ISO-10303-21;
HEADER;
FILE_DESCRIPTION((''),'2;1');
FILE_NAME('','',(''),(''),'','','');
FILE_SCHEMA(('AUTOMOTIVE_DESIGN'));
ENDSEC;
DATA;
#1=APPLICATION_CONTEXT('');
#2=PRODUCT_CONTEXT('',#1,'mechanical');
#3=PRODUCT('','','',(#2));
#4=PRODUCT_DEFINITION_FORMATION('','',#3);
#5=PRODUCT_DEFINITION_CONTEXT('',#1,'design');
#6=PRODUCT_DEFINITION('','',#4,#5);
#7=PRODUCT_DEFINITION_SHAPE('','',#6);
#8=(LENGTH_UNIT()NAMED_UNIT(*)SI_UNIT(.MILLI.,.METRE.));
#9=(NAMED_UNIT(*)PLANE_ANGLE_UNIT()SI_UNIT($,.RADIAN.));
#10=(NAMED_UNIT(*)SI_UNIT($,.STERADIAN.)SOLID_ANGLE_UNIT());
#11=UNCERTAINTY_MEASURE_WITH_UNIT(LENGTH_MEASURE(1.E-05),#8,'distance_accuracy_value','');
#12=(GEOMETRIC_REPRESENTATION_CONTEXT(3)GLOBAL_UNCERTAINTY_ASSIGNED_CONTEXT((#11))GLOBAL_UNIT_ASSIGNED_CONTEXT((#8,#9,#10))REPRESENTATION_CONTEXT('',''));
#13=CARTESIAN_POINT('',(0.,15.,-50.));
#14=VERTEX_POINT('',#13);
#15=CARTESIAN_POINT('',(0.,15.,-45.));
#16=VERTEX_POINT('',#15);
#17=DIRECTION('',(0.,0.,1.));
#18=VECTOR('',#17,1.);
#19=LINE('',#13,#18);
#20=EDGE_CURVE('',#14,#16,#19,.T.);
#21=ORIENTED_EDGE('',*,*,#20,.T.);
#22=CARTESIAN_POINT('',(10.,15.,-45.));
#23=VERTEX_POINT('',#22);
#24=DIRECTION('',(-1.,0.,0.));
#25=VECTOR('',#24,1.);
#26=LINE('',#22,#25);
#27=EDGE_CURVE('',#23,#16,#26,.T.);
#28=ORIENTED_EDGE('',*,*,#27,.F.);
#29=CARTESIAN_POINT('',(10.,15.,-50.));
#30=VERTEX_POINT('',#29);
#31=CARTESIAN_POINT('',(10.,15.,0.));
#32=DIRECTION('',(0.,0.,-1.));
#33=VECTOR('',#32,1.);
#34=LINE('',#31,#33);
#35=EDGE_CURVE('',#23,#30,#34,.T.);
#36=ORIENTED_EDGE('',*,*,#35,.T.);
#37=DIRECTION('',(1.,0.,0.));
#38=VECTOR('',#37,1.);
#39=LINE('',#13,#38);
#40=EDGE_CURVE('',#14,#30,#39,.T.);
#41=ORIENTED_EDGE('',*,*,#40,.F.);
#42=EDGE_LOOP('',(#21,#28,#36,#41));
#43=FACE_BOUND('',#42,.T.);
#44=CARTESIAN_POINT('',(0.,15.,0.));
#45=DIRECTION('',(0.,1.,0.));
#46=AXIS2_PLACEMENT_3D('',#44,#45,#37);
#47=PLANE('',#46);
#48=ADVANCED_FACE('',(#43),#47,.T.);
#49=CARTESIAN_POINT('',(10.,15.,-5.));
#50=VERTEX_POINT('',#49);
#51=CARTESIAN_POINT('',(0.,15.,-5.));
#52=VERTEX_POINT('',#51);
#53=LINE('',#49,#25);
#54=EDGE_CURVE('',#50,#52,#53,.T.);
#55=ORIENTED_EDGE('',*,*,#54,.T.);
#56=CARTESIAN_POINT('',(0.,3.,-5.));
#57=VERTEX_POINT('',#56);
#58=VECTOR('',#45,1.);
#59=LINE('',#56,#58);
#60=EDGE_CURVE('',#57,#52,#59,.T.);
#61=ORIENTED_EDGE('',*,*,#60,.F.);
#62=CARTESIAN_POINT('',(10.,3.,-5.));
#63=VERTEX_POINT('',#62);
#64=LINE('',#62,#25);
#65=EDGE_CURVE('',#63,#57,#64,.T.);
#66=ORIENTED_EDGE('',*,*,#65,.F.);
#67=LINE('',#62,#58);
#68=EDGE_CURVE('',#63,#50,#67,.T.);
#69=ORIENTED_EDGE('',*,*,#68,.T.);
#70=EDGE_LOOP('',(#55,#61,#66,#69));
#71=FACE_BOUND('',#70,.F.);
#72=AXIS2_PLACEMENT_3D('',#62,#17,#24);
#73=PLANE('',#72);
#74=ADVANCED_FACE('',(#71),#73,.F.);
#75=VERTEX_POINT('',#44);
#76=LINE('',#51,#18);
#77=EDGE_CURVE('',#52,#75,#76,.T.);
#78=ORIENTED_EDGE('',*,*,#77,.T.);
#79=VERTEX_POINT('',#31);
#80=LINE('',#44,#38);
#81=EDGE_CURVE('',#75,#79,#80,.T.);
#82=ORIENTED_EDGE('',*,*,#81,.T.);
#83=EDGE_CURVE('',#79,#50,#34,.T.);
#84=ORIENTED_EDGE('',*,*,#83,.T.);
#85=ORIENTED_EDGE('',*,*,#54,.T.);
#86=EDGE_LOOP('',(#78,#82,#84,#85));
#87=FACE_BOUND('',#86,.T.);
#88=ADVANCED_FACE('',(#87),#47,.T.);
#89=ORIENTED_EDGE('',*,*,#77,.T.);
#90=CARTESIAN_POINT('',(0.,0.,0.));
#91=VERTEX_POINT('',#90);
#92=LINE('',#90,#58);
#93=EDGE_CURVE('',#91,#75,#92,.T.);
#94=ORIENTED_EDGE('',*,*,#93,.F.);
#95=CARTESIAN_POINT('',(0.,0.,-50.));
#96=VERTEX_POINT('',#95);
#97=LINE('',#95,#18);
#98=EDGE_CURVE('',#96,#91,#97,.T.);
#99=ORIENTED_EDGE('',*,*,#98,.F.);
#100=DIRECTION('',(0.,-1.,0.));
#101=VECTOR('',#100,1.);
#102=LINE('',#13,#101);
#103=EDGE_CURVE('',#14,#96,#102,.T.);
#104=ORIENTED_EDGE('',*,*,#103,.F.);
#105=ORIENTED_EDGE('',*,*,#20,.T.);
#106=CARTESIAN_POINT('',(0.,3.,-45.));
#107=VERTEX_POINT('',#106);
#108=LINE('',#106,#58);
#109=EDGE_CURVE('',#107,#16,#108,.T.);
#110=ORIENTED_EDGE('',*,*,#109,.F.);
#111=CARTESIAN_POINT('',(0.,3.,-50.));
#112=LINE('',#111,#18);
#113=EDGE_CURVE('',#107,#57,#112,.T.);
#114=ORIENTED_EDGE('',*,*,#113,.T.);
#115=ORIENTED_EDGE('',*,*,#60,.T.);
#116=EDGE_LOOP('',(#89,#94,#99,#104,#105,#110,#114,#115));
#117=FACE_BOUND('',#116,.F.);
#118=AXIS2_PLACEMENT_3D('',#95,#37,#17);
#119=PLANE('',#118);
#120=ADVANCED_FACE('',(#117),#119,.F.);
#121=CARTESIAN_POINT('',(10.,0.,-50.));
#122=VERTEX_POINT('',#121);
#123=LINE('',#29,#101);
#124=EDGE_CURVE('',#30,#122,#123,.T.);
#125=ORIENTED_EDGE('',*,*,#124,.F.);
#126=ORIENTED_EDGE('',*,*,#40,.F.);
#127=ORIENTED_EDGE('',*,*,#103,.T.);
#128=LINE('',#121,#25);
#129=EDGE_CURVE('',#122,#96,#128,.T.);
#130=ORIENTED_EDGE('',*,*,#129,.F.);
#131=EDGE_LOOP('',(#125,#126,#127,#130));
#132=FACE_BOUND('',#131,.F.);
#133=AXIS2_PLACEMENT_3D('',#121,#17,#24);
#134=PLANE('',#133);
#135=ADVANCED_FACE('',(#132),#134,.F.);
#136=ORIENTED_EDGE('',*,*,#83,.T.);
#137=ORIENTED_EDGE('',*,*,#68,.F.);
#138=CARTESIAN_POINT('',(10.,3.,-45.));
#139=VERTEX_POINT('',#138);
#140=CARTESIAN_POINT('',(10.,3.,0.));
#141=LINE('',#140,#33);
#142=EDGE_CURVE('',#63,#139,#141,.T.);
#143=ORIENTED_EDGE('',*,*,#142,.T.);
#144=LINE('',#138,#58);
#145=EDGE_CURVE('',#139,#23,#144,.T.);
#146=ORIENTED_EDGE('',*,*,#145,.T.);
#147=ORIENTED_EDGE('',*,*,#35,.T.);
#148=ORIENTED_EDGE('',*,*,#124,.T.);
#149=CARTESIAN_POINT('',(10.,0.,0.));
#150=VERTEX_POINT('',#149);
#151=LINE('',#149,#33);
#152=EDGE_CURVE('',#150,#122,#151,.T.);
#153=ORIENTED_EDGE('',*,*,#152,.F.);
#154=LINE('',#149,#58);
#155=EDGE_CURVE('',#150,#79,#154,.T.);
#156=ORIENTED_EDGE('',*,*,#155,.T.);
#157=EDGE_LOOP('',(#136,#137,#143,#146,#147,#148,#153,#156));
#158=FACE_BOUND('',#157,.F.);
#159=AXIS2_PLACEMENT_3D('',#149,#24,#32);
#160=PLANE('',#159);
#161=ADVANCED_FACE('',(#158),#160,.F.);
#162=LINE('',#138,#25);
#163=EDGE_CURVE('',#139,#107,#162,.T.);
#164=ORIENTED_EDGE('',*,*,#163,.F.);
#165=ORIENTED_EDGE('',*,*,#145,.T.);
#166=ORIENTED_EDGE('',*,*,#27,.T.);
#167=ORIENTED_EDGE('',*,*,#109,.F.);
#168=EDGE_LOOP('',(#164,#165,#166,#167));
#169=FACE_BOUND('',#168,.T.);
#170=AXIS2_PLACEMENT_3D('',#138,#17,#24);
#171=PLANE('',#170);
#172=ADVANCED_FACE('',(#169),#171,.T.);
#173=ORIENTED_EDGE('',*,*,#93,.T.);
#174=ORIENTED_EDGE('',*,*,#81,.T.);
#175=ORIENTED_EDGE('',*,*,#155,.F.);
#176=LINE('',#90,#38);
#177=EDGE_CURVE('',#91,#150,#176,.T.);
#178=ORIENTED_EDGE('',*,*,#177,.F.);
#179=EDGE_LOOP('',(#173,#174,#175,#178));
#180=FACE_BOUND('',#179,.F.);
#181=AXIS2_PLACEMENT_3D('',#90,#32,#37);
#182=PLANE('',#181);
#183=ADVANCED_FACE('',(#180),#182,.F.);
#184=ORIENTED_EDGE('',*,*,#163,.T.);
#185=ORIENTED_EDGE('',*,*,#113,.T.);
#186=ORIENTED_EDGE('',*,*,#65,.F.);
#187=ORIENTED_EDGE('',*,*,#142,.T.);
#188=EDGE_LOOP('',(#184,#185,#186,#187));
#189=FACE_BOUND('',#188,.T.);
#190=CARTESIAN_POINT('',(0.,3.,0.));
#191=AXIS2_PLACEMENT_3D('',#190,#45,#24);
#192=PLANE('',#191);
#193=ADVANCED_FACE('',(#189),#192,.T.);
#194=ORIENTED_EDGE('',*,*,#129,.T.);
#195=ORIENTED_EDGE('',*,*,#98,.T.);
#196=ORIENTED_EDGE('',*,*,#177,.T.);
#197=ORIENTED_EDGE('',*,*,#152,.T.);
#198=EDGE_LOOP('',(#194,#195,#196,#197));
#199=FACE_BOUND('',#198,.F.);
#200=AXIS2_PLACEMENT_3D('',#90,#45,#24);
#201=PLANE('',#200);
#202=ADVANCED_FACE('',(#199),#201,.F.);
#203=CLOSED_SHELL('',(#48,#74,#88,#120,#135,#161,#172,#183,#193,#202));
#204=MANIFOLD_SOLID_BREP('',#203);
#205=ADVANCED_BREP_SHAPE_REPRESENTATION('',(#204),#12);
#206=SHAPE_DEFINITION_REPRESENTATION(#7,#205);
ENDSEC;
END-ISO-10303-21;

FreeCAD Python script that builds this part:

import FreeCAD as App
import Part
import Sketcher

V = App.Vector
Q = App.Units.Quantity

doc = App.newDocument("Part")
body = doc.addObject("PartDesign::Body", "Body")

sketch1 = doc.addObject("Sketcher::SketchObject", "Sketch")
body.addObject(sketch1)
sketch1.AttachmentSupport = (doc.XZ_Plane, [""])
sketch1.MapMode = "FlatFace"
sketch1.addGeometry([
    Part.LineSegment(V(0, -50, 0), V(0, 0, 0)),
    Part.LineSegment(V(0, 0, 0), V(10, 0, 0)),
    Part.LineSegment(V(10, 0, 0), V(10, -50, 0)),
    Part.LineSegment(V(10, -50, 0), V(0, -50, 0)),
], False)
sketch1.addConstraint([
    Sketcher.Constraint("Coincident", 0, 2, 1, 1),
    Sketcher.Constraint("Coincident", 1, 2, 2, 1),
    Sketcher.Constraint("Coincident", 2, 2, 3, 1),
    Sketcher.Constraint("Coincident", 3, 2, 0, 1),
    Sketcher.Constraint("Vertical", 0),
    Sketcher.Constraint("Horizontal", 1),
    Sketcher.Constraint("Vertical", 2),
    Sketcher.Constraint("Horizontal", 3),
    Sketcher.Constraint("Coincident", 0, 2, -1, 1),
    Sketcher.Constraint("DistanceX", 1, 1, 1, 2, Q("10 mm")),
    Sketcher.Constraint("DistanceY", 0, 1, 0, 2, Q("50 mm")),
])
pad1 = doc.addObject("PartDesign::Pad", "Pad")
body.addObject(pad1)
pad1.Profile = sketch1
pad1.Length = 3
pad1.Reversed = True

sketch2 = doc.addObject("Sketcher::SketchObject", "Sketch001")
body.addObject(sketch2)
sketch2.AttachmentSupport = (doc.XZ_Plane, [""])
sketch2.MapMode = "FlatFace"
sketch2.AttachmentOffset = App.Placement(V(0, 0, -3), App.Rotation())
sketch2.addGeometry([
    Part.LineSegment(V(0, -5, 0), V(0, 0, 0)),
    Part.LineSegment(V(0, 0, 0), V(10, 0, 0)),
    Part.LineSegment(V(10, 0, 0), V(10, -5, 0)),
    Part.LineSegment(V(10, -5, 0), V(0, -5, 0)),
    Part.LineSegment(V(0, -50, 0), V(0, -45, 0)),
    Part.LineSegment(V(0, -45, 0), V(10, -45, 0)),
    Part.LineSegment(V(10, -45, 0), V(10, -50, 0)),
    Part.LineSegment(V(10, -50, 0), V(0, -50, 0)),
], False)
sketch2.addConstraint([
    Sketcher.Constraint("Coincident", 0, 2, 1, 1),
    Sketcher.Constraint("Coincident", 1, 2, 2, 1),
    Sketcher.Constraint("Coincident", 2, 2, 3, 1),
    Sketcher.Constraint("Coincident", 3, 2, 0, 1),
    Sketcher.Constraint("Coincident", 4, 2, 5, 1),
    Sketcher.Constraint("Coincident", 5, 2, 6, 1),
    Sketcher.Constraint("Coincident", 6, 2, 7, 1),
    Sketcher.Constraint("Coincident", 7, 2, 4, 1),
    Sketcher.Constraint("Vertical", 0),
    Sketcher.Constraint("Horizontal", 1),
    Sketcher.Constraint("Vertical", 2),
    Sketcher.Constraint("Horizontal", 3),
    Sketcher.Constraint("Vertical", 4),
    Sketcher.Constraint("Horizontal", 5),
    Sketcher.Constraint("Vertical", 6),
    Sketcher.Constraint("Horizontal", 7),
    Sketcher.Constraint("Coincident", 0, 2, -1, 1),
    Sketcher.Constraint("PointOnObject", 4, 2, -2),
    Sketcher.Constraint("Vertical", 2, 2, 5, 2),
    Sketcher.Constraint("Equal", 2, 4),
    Sketcher.Constraint("DistanceY", 0, 1, 0, 2, Q("5 mm")),
    Sketcher.Constraint("DistanceX", 1, 1, 1, 2, Q("10 mm")),
    Sketcher.Constraint("DistanceY", 4, 2, -1, 1, Q("45 mm")),
])
pad2 = doc.addObject("PartDesign::Pad", "Pad001")
body.addObject(pad2)
pad2.Profile = sketch2
pad2.Length = 12
pad2.Reversed = True

doc.recompute()
